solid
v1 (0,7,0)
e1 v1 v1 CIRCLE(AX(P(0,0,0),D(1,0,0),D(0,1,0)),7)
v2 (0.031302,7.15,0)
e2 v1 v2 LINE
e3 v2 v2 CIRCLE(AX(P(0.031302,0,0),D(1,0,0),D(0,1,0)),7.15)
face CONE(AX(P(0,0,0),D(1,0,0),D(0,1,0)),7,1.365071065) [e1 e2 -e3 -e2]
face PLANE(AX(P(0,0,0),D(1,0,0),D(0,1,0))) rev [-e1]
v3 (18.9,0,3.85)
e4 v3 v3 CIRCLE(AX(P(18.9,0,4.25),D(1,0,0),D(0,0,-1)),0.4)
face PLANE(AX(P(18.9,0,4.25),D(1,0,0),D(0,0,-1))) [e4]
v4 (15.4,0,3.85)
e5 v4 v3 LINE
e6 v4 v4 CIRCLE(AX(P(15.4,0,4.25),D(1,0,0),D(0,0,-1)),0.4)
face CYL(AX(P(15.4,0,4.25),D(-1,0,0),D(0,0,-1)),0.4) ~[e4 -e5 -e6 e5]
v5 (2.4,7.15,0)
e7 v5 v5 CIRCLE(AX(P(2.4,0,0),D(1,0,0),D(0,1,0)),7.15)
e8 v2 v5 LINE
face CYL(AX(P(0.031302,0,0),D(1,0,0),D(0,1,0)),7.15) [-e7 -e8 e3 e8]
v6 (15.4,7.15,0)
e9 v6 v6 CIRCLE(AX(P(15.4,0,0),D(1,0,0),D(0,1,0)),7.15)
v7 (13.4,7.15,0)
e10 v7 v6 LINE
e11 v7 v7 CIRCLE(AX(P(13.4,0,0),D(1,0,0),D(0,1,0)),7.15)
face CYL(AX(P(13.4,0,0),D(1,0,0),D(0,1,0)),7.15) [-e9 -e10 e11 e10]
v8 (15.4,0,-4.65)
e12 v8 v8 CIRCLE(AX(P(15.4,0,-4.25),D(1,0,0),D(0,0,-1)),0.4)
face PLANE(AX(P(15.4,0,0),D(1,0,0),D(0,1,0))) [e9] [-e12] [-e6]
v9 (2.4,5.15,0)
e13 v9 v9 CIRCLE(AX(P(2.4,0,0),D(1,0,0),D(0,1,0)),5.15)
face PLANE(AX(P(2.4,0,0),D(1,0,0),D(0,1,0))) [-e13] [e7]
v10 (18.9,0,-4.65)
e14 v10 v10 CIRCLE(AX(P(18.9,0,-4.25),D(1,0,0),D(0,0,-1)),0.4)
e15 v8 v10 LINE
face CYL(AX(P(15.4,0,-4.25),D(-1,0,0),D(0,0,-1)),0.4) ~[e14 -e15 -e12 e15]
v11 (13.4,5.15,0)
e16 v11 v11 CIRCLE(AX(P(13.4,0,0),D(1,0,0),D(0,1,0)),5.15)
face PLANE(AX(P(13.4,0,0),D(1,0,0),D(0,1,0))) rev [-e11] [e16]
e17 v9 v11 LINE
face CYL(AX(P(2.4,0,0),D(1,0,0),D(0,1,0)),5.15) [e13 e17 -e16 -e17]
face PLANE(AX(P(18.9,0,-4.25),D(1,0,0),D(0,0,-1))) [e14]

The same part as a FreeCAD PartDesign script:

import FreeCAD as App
import Part
import Sketcher
from FreeCAD import Vector
Q = App.Units.Quantity

doc = App.newDocument("Part")
params = doc.addObject("Spreadsheet::Sheet", "Params")
for row, (alias, value) in enumerate([
    ("sketch1_width", "2 mm"),
    ("sketch1_width2", "11 mm"),
    ("sketch1_height", "7 mm"),
    ("sketch1_width3", "15.4 mm"),
    ("sketch1_height2", "7.15 mm"),
    ("revolution_angle", "360 deg"),
    ("sketch2_diameter", "0.8 mm"),
    ("pad1_length", "3.5 mm"),
], start=1):
    params.set(f"A{row}", alias)
    params.set(f"B{row}", "=" + value)
    params.setAlias(f"B{row}", alias)

body = doc.addObject("PartDesign::Body", "Body")

sketch1 = body.newObject("Sketcher::SketchObject", "Sketch")
sketch1.AttachmentSupport = (doc.getObject("XY_Plane"), [""])
sketch1.MapMode = "FlatFace"
sketch1.addGeometry(Part.LineSegment(Vector(0, 7, 0), Vector(0, 0, 0)), False)
sketch1.addGeometry(Part.LineSegment(Vector(0, 0, 0), Vector(15.4, 0, 0)), False)
sketch1.addGeometry(Part.LineSegment(Vector(15.4, 0, 0), Vector(15.4, 7.15, 0)), False)
sketch1.addGeometry(Part.LineSegment(Vector(15.4, 7.15, 0), Vector(13.4, 7.15, 0)), False)
sketch1.addGeometry(Part.LineSegment(Vector(13.4, 7.15, 0), Vector(13.4, 5.15, 0)), False)
sketch1.addGeometry(Part.LineSegment(Vector(13.4, 5.15, 0), Vector(2.4, 5.15, 0)), False)
sketch1.addGeometry(Part.LineSegment(Vector(2.4, 5.15, 0), Vector(2.4, 7.15, 0)), False)
sketch1.addGeometry(Part.LineSegment(Vector(2.4, 7.15, 0), Vector(0.03, 7.15, 0)), False)
sketch1.addGeometry(Part.LineSegment(Vector(0.03, 7.15, 0), Vector(0, 7, 0)), False)
sketch1.addConstraint(Sketcher.Constraint("Coincident", 0, 2, 1, 1))
sketch1.addConstraint(Sketcher.Constraint("Coincident", 1, 2, 2, 1))
sketch1.addConstraint(Sketcher.Constraint("Coincident", 2, 2, 3, 1))
sketch1.addConstraint(Sketcher.Constraint("Coincident", 3, 2, 4, 1))
sketch1.addConstraint(Sketcher.Constraint("Coincident", 4, 2, 5, 1))
sketch1.addConstraint(Sketcher.Constraint("Coincident", 5, 2, 6, 1))
sketch1.addConstraint(Sketcher.Constraint("Coincident", 6, 2, 7, 1))
sketch1.addConstraint(Sketcher.Constraint("Coincident", 7, 2, 8, 1))
sketch1.addConstraint(Sketcher.Constraint("Coincident", 8, 2, 0, 1))
sketch1.addConstraint(Sketcher.Constraint("Vertical", 0))
sketch1.addConstraint(Sketcher.Constraint("Horizontal", 1))
sketch1.addConstraint(Sketcher.Constraint("Vertical", 2))
sketch1.addConstraint(Sketcher.Constraint("Horizontal", 3))
sketch1.addConstraint(Sketcher.Constraint("Vertical", 4))
sketch1.addConstraint(Sketcher.Constraint("Horizontal", 5))
sketch1.addConstraint(Sketcher.Constraint("Vertical", 6))
sketch1.addConstraint(Sketcher.Constraint("Horizontal", 7))
sketch1.addConstraint(Sketcher.Constraint("Coincident", 0, 2, -1, 1))
sketch1.addConstraint(Sketcher.Constraint("Horizontal", 3, 2, 6, 2))
sketch1.addConstraint(Sketcher.Constraint("Equal", 3, 4))
sketch1.addConstraint(Sketcher.Constraint("DistanceX", 3, 2, 3, 1, Q("2 mm")))
sketch1.addConstraint(Sketcher.Constraint("DistanceX", 5, 2, 5, 1, Q("11 mm")))
sketch1.addConstraint(Sketcher.Constraint("DistanceY", 0, 2, 0, 1, Q("7 mm")))
sketch1.addConstraint(Sketcher.Constraint("DistanceX", 1, 1, 1, 2, Q("15.4 mm")))
sketch1.addConstraint(Sketcher.Constraint("DistanceY", 2, 1, 2, 2, Q("7.15 mm")))
sketch1.addConstraint(Sketcher.Constraint("DistanceX", 7, 2, 7, 1, Q("2.368698 mm")))
sketch1.setExpression("Constraints[20]", "Params.sketch1_width")
sketch1.setExpression("Constraints[21]", "Params.sketch1_width2")
sketch1.setExpression("Constraints[22]", "Params.sketch1_height")
sketch1.setExpression("Constraints[23]", "Params.sketch1_width3")
sketch1.setExpression("Constraints[24]", "Params.sketch1_height2")
revolution = body.newObject("PartDesign::Revolution", "Revolution")
revolution.Profile = sketch1
revolution.ReferenceAxis = (sketch1, ["H_Axis"])
revolution.setExpression("Angle", "Params.revolution_angle")

sketch2 = body.newObject("Sketcher::SketchObject", "Sketch001")
sketch2.AttachmentSupport = (doc.getObject("YZ_Plane"), [""])
sketch2.MapMode = "FlatFace"
sketch2.AttachmentOffset = App.Placement(Vector(0, 0, 15.4), App.Rotation())
sketch2.addGeometry(Part.Circle(Vector(0, 4.25, 0), Vector(0, 0, 1), 0.4), False)
sketch2.addGeometry(Part.Circle(Vector(0, -4.25, 0), Vector(0, 0, 1), 0.4), False)
sketch2.addConstraint(Sketcher.Constraint("Equal", 0, 1))
sketch2.addConstraint(Sketcher.Constraint("Symmetric", 0, 3, 1, 3, -1, 1))
sketch2.addConstraint(Sketcher.Constraint("PointOnObject", 0, 3, -2))
sketch2.addConstraint(Sketcher.Constraint("Diameter", 0, Q("0.8 mm")))
sketch2.addConstraint(Sketcher.Constraint("DistanceY", 1, 3, 0, 3, Q("8.5 mm")))
sketch2.setExpression("Constraints[3]", "Params.sketch2_diameter")
pad1 = body.newObject("PartDesign::Pad", "Pad")
pad1.Profile = sketch2
pad1.setExpression("Length", "Params.pad1_length")

doc.recompute()
